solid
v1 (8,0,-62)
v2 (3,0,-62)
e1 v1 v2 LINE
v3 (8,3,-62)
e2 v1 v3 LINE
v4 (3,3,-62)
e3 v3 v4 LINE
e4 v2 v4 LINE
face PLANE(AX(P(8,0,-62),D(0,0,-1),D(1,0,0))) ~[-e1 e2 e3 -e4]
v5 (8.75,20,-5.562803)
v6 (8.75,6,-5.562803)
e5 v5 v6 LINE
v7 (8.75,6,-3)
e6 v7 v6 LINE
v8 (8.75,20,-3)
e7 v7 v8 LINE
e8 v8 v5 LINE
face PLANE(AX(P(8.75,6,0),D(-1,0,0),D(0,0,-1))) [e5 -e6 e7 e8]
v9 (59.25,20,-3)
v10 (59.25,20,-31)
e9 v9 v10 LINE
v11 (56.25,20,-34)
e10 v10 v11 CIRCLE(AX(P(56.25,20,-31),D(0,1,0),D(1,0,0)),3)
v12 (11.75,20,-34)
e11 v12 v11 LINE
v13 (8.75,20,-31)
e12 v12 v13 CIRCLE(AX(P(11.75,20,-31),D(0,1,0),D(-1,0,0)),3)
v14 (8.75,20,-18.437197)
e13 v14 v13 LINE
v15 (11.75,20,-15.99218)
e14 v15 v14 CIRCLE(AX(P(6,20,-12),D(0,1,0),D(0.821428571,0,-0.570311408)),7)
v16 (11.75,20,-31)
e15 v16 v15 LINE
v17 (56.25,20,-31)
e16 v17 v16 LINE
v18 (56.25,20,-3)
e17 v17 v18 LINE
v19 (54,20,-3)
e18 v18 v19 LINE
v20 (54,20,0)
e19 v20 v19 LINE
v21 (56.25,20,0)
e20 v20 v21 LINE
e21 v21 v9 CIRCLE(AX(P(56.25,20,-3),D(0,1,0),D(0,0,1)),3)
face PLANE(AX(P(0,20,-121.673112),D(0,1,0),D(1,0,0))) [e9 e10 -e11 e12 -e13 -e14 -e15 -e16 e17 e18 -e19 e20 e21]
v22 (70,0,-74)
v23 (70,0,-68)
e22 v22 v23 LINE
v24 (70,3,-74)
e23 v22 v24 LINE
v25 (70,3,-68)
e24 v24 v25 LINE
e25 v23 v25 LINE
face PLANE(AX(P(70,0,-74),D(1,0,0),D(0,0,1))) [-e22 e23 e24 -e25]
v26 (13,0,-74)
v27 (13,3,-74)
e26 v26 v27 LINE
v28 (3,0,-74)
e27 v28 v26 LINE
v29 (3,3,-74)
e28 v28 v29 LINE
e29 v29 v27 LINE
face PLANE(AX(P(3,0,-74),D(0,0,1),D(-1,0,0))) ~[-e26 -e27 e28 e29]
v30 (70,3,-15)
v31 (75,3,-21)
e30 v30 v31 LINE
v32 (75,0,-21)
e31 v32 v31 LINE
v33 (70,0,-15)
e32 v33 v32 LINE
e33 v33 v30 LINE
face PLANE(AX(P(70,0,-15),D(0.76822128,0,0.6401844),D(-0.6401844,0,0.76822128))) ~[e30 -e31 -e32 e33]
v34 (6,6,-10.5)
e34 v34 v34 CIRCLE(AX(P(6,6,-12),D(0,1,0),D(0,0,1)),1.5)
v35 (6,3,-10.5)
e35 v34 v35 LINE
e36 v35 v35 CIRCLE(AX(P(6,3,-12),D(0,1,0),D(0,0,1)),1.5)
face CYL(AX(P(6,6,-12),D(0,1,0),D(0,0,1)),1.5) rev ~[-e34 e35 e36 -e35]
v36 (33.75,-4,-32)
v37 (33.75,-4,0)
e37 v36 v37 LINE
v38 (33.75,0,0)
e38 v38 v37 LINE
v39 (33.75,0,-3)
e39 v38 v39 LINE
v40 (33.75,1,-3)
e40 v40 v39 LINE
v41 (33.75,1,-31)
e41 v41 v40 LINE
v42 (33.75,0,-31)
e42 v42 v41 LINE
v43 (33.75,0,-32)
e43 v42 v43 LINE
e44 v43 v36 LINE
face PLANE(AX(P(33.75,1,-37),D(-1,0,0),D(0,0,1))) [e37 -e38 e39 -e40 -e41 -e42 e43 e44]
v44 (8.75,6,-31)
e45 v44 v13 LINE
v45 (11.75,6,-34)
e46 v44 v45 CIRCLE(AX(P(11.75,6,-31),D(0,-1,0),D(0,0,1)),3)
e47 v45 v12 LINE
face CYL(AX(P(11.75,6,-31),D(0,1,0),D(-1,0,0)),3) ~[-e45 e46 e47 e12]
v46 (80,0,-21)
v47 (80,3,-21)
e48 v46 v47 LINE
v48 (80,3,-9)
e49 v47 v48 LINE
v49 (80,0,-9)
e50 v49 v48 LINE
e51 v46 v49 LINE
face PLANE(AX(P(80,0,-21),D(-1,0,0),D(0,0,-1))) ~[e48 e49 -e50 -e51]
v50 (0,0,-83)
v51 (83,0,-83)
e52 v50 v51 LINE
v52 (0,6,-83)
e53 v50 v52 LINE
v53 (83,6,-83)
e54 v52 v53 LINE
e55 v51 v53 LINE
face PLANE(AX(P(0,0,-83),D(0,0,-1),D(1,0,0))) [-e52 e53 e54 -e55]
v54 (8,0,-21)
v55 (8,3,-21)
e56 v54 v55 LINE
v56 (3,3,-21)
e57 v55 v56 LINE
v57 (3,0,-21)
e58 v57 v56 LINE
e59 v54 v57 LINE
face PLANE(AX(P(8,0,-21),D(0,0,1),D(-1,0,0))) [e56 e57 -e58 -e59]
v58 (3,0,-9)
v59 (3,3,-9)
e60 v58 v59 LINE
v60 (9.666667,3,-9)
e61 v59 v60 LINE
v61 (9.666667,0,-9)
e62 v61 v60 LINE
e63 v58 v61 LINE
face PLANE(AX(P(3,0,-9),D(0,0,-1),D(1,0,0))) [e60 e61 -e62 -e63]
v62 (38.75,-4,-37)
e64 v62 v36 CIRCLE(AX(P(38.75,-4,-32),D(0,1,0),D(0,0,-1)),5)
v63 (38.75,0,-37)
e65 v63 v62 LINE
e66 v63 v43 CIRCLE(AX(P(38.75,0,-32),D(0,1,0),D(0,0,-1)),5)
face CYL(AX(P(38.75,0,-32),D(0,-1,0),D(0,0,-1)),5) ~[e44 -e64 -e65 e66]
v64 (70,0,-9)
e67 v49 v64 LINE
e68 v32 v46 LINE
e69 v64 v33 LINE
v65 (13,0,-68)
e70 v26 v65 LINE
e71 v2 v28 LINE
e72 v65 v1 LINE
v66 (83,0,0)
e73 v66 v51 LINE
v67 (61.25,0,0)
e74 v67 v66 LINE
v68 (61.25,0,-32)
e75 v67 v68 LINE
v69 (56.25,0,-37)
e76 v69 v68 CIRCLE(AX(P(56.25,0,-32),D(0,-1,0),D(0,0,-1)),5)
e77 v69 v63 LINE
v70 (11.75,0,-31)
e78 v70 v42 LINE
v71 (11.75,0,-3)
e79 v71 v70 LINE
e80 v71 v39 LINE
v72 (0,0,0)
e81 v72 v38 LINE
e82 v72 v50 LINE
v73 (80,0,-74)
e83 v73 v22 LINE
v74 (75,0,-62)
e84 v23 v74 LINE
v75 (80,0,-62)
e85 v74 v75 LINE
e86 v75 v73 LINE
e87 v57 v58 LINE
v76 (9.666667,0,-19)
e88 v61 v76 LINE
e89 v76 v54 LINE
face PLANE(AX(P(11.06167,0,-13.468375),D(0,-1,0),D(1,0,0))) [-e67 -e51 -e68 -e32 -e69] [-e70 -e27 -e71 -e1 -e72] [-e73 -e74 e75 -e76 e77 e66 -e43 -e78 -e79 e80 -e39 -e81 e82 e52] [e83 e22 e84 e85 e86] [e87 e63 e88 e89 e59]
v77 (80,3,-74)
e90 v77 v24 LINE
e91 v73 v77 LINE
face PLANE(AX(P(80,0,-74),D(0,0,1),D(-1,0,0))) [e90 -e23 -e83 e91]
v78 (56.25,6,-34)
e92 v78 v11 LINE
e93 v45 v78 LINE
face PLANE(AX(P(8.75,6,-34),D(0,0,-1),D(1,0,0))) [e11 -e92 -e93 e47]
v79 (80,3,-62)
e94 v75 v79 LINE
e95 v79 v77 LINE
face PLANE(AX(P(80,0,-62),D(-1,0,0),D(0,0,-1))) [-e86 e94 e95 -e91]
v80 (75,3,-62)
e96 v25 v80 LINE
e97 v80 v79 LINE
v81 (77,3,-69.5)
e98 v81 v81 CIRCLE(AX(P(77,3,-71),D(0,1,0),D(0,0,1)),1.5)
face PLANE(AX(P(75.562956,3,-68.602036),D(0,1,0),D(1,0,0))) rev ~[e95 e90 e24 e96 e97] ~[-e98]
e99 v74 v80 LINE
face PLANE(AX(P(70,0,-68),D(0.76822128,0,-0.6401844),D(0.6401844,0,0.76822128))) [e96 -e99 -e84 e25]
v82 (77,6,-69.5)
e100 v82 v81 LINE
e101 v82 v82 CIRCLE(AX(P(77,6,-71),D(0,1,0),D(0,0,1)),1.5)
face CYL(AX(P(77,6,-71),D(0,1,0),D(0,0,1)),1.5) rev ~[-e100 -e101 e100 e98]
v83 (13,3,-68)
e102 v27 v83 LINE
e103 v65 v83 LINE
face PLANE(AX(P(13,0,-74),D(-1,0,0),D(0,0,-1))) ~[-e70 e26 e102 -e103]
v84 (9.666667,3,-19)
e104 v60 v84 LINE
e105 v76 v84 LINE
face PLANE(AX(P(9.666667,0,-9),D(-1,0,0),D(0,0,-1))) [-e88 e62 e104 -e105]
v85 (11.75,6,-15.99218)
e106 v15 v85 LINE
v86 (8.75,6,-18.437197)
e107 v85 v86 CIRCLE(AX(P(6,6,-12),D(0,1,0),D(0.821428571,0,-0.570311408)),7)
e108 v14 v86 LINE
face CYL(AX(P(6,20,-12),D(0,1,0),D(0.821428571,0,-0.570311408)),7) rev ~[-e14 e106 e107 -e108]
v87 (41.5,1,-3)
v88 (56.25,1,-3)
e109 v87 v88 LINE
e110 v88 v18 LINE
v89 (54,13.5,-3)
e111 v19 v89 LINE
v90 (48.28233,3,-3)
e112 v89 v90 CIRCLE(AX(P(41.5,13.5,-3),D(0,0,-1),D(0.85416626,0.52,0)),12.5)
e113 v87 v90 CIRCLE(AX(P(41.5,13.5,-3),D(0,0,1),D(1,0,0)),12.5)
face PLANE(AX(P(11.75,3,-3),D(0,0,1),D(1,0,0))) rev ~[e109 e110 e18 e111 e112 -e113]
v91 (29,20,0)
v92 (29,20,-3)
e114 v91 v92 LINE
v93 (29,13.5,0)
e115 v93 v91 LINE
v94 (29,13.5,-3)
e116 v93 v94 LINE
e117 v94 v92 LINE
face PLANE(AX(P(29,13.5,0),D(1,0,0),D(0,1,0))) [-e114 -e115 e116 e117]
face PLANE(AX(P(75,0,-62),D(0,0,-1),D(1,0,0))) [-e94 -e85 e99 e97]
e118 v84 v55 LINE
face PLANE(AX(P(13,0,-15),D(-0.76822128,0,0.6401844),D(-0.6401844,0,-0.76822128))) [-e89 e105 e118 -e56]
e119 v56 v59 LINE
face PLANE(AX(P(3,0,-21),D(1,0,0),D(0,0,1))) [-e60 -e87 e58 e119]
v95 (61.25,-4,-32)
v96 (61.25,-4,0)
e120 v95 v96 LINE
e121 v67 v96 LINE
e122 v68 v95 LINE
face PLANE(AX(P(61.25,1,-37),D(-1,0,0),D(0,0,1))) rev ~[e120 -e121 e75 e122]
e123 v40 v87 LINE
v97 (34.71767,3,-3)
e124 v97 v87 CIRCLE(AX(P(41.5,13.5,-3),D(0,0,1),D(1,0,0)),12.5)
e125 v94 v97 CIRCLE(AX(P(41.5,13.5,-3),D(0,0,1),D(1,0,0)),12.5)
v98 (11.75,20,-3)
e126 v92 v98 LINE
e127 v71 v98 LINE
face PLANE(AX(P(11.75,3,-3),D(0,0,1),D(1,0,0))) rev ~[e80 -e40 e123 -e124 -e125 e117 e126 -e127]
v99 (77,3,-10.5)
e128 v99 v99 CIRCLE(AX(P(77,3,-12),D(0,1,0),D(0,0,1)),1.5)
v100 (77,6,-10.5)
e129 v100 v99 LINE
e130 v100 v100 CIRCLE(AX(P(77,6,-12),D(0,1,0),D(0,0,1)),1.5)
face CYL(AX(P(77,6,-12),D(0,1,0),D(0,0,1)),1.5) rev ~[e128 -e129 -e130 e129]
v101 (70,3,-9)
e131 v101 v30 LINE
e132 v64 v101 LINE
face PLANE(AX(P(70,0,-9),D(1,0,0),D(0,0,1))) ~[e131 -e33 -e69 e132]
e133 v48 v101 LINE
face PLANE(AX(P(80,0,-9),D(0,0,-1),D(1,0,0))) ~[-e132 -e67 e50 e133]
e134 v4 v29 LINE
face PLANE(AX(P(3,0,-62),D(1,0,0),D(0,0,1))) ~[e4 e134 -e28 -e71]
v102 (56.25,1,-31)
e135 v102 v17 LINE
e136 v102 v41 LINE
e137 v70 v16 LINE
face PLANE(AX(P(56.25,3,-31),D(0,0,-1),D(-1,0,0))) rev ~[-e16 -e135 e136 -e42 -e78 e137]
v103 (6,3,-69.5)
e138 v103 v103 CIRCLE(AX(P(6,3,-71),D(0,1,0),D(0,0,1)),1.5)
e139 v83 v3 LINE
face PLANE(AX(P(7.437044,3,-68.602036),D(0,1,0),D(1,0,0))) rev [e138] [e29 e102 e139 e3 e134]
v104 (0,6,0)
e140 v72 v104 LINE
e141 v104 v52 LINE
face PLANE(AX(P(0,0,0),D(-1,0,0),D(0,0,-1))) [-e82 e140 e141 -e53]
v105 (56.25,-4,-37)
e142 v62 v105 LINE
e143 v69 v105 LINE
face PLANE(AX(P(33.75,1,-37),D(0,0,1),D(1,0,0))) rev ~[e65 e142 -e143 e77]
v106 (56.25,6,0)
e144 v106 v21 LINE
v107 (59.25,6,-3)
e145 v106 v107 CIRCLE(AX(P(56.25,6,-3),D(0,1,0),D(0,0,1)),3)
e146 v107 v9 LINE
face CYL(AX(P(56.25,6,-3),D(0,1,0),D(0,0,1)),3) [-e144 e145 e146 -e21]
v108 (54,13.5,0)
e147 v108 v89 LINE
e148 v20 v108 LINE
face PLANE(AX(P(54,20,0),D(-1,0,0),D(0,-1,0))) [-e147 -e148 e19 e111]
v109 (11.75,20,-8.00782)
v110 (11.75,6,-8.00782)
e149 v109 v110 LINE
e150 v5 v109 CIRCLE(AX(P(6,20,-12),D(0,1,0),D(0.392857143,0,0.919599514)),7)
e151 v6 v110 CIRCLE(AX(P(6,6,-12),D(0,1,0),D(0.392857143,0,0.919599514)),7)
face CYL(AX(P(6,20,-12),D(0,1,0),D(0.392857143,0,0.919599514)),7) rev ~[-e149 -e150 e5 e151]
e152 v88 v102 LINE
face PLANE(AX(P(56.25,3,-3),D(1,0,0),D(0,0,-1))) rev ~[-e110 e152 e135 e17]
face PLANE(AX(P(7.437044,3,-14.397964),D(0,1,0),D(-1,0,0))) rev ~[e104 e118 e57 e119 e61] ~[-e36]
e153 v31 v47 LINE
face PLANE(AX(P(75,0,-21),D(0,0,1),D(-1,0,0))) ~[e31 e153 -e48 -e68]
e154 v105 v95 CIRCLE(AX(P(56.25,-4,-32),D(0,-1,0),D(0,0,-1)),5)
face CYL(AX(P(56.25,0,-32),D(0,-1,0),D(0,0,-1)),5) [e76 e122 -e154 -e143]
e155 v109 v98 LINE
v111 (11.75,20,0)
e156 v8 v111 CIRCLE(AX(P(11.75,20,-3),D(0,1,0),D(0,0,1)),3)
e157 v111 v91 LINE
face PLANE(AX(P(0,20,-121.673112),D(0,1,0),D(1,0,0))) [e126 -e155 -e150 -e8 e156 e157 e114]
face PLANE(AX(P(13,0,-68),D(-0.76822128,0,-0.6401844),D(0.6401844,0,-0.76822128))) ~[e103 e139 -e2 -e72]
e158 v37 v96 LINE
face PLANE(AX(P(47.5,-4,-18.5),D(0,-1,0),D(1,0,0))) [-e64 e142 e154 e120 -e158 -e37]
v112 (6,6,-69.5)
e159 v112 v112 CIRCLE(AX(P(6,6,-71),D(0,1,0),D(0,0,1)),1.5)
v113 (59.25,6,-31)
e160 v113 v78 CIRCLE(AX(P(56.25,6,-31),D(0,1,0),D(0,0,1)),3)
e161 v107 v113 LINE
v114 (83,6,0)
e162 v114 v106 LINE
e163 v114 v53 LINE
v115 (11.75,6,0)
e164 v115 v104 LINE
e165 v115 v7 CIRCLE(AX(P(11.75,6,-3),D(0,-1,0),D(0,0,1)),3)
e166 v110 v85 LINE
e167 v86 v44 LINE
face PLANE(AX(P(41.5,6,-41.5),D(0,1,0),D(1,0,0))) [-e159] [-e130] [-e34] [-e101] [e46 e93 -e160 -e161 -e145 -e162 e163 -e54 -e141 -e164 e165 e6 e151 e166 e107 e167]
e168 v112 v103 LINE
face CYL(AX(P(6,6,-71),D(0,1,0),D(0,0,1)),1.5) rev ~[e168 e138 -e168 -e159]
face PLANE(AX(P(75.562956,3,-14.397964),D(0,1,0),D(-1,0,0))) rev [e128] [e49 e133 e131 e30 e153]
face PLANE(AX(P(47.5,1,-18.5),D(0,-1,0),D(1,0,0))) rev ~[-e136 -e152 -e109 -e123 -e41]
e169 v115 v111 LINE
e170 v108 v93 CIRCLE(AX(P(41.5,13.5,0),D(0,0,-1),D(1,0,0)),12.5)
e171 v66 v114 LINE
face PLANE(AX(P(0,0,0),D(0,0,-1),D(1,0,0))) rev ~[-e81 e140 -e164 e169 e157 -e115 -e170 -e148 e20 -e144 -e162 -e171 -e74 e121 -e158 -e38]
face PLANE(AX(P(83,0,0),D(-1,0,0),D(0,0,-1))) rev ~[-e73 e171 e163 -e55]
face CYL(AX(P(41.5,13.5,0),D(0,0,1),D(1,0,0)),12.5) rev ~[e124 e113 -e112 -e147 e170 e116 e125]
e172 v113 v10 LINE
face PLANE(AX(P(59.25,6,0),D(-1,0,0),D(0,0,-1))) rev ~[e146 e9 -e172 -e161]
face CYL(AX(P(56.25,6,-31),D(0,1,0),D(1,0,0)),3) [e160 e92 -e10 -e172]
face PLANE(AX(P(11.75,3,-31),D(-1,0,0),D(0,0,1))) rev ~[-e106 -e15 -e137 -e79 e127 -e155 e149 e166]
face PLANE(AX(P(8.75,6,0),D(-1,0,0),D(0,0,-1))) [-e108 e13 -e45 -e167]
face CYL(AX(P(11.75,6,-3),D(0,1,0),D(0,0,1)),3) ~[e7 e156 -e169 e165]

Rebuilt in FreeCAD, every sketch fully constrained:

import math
import FreeCAD as App
import Part
import Sketcher
from FreeCAD import Vector
Q = App.Units.Quantity


def edges_at(feature, points):
    """Names of the edges that pass closest to the given points."""
    edges = feature.Shape.Edges
    near = lambda p: min(range(len(edges)), key=lambda i: edges[i].distToShape(Part.Vertex(*p))[0])
    return sorted({f"Edge{near(p) + 1}" for p in points})

doc = App.newDocument("Part")
body = doc.addObject("PartDesign::Body", "Body")

# Sketch on XZ plane
sketch1 = body.newObject("Sketcher::SketchObject", "Sketch")
sketch1.AttachmentSupport = (doc.getObject("XZ_Plane"), [""])
sketch1.MapMode = "FlatFace"
sketch1.addGeometry([
    Part.LineSegment(Vector(0, -83, 0), Vector(0, 0, 0)),
    Part.LineSegment(Vector(0, 0, 0), Vector(83, 0, 0)),
    Part.LineSegment(Vector(83, 0, 0), Vector(83, -83, 0)),
    Part.LineSegment(Vector(83, -83, 0), Vector(0, -83, 0)),
], False)
sketch1.addConstraint([
    Sketcher.Constraint("Coincident", 0, 2, 1, 1),
    Sketcher.Constraint("Coincident", 1, 2, 2, 1),
    Sketcher.Constraint("Coincident", 2, 2, 3, 1),
    Sketcher.Constraint("Coincident", 3, 2, 0, 1),
    Sketcher.Constraint("Vertical", 0),
    Sketcher.Constraint("Horizontal", 1),
    Sketcher.Constraint("Vertical", 2),
    Sketcher.Constraint("Horizontal", 3),
    Sketcher.Constraint("Coincident", 0, 2, -1, 1),
    Sketcher.Constraint("Equal", 3, 0),
    Sketcher.Constraint("DistanceX", 1, 1, 1, 2, Q("83 mm")),
])
pad1 = body.newObject("PartDesign::Pad", "Pad")
pad1.Profile = sketch1
pad1.Length = 6
pad1.Reversed = True

# Sketch on XZ plane
sketch2 = body.newObject("Sketcher::SketchObject", "Sketch001")
sketch2.AttachmentSupport = (doc.getObject("XZ_Plane"), [""])
sketch2.MapMode = "FlatFace"
sketch2.AttachmentOffset = App.Placement(Vector(0, 0, -6), App.Rotation())
sketch2.addGeometry([
    Part.Circle(Vector(6, -71, 0), Vector(0, 0, 1), 1.5),
    Part.Circle(Vector(6, -12, 0), Vector(0, 0, 1), 1.5),
    Part.Circle(Vector(77, -12, 0), Vector(0, 0, 1), 1.5),
    Part.Circle(Vector(77, -71, 0), Vector(0, 0, 1), 1.5),
], False)
sketch2.addConstraint([
    Sketcher.Constraint("Equal", 0, 1),
    Sketcher.Constraint("Equal", 1, 2),
    Sketcher.Constraint("Equal", 2, 3),
    Sketcher.Constraint("Horizontal", 1, 3, 2, 3),
    Sketcher.Constraint("Horizontal", 0, 3, 3, 3),
    Sketcher.Constraint("Vertical", 0, 3, 1, 3),
    Sketcher.Constraint("Vertical", 2, 3, 3, 3),
    Sketcher.Constraint("Diameter", 0, Q("3 mm")),
    Sketcher.Constraint("DistanceX", -1, 1, 0, 3, Q("6 mm")),
    Sketcher.Constraint("DistanceY", 0, 3, -1, 1, Q("71 mm")),
    Sketcher.Constraint("DistanceY", 1, 3, -1, 1, Q("12 mm")),
    Sketcher.Constraint("DistanceX", -1, 1, 2, 3, Q("77 mm")),
])
pocket1 = body.newObject("PartDesign::Pocket", "Pocket")
pocket1.Profile = sketch2
pocket1.Type = "ThroughAll"
pocket1.Reversed = True

# Sketch on XZ plane
sketch3 = body.newObject("Sketcher::SketchObject", "Sketch002")
sketch3.AttachmentSupport = (doc.getObject("XZ_Plane"), [""])
sketch3.MapMode = "FlatFace"
sketch3.AttachmentOffset = App.Placement(Vector(0, 0, -6), App.Rotation())
sketch3.addGeometry([
    Part.LineSegment(Vector(9, -34, 0), Vector(9, 0, 0)),
    Part.LineSegment(Vector(9, 0, 0), Vector(59, 0, 0)),
    Part.LineSegment(Vector(59, 0, 0), Vector(59, -34, 0)),
    Part.LineSegment(Vector(59, -34, 0), Vector(9, -34, 0)),
], False)
sketch3.addConstraint([
    Sketcher.Constraint("Coincident", 0, 2, 1, 1),
    Sketcher.Constraint("Coincident", 1, 2, 2, 1),
    Sketcher.Constraint("Coincident", 2, 2, 3, 1),
    Sketcher.Constraint("Coincident", 3, 2, 0, 1),
    Sketcher.Constraint("Vertical", 0),
    Sketcher.Constraint("Horizontal", 1),
    Sketcher.Constraint("Vertical", 2),
    Sketcher.Constraint("Horizontal", 3),
    Sketcher.Constraint("PointOnObject", 0, 2, -1),
    Sketcher.Constraint("DistanceY", 0, 1, 0, 2, Q("34 mm")),
    Sketcher.Constraint("DistanceX", 1, 1, 1, 2, Q("50.5 mm")),
    Sketcher.Constraint("DistanceX", -1, 1, 0, 2, Q("8.75 mm")),
])
pad2 = body.newObject("PartDesign::Pad", "Pad001")
pad2.Profile = sketch3
pad2.Length = 22
pad2.Reversed = True

# Sketch on XZ plane
sketch4 = body.newObject("Sketcher::SketchObject", "Sketch003")
sketch4.AttachmentSupport = (doc.getObject("XZ_Plane"), [""])
sketch4.MapMode = "FlatFace"
sketch4.AttachmentOffset = App.Placement(Vector(0, 0, -28), App.Rotation())
sketch4.addGeometry([
    Part.LineSegment(Vector(12, -31, 0), Vector(12, -3, 0)),
    Part.LineSegment(Vector(12, -3, 0), Vector(56, -3, 0)),
    Part.LineSegment(Vector(56, -3, 0), Vector(56, -31, 0)),
    Part.LineSegment(Vector(56, -31, 0), Vector(12, -31, 0)),
], False)
sketch4.addConstraint([
    Sketcher.Constraint("Coincident", 0, 2, 1, 1),
    Sketcher.Constraint("Coincident", 1, 2, 2, 1),
    Sketcher.Constraint("Coincident", 2, 2, 3, 1),
    Sketcher.Constraint("Coincident", 3, 2, 0, 1),
    Sketcher.Constraint("Vertical", 0),
    Sketcher.Constraint("Horizontal", 1),
    Sketcher.Constraint("Vertical", 2),
    Sketcher.Constraint("Horizontal", 3),
    Sketcher.Constraint("DistanceY", 0, 1, 0, 2, Q("28 mm")),
    Sketcher.Constraint("DistanceX", 1, 1, 1, 2, Q("44.5 mm")),
    Sketcher.Constraint("DistanceY", 0, 2, -1, 1, Q("3 mm")),
    Sketcher.Constraint("DistanceX", -1, 1, 0, 2, Q("11.75 mm")),
])
pocket2 = body.newObject("PartDesign::Pocket", "Pocket001")
pocket2.Profile = sketch4
pocket2.Length = 25
pocket2.Reversed = True
doc.recompute()

fillet = body.newObject("PartDesign::Fillet", "Fillet")
fillet.Base = (pocket2, edges_at(pocket2, [
    (59.25, 17, -34),
    (8.75, 17, -34),
    (8.75, 17, 0),
    (59.25, 17, 0),
]))
fillet.Radius = 3

# Sketch on XY plane
sketch5 = body.newObject("Sketcher::SketchObject", "Sketch004")
sketch5.AttachmentSupport = (doc.getObject("XY_Plane"), [""])
sketch5.MapMode = "FlatFace"
sketch5.addGeometry(Part.Circle(Vector(42, 14, 0), Vector(0, 0, 1), 12), False)
sketch5.addConstraint([
    Sketcher.Constraint("Diameter", 0, Q("25 mm")),
    Sketcher.Constraint("DistanceX", -1, 1, 0, 3, Q("41.5 mm")),
    Sketcher.Constraint("DistanceY", -1, 1, 0, 3, Q("13.5 mm")),
])
pocket3 = body.newObject("PartDesign::Pocket", "Pocket002")
pocket3.Profile = sketch5
pocket3.Length = 10

# Sketch on XY plane
sketch6 = body.newObject("Sketcher::SketchObject", "Sketch005")
sketch6.AttachmentSupport = (doc.getObject("XY_Plane"), [""])
sketch6.MapMode = "FlatFace"
sketch6.addGeometry([
    Part.LineSegment(Vector(0, 28, 0), Vector(0, 20, 0)),
    Part.LineSegment(Vector(0, 20, 0), Vector(83, 20, 0)),
    Part.LineSegment(Vector(83, 20, 0), Vector(83, 28, 0)),
    Part.LineSegment(Vector(83, 28, 0), Vector(0, 28, 0)),
], False)
sketch6.addConstraint([
    Sketcher.Constraint("Coincident", 0, 2, 1, 1),
    Sketcher.Constraint("Coincident", 1, 2, 2, 1),
    Sketcher.Constraint("Coincident", 2, 2, 3, 1),
    Sketcher.Constraint("Coincident", 3, 2, 0, 1),
    Sketcher.Constraint("Vertical", 0),
    Sketcher.Constraint("Horizontal", 1),
    Sketcher.Constraint("Vertical", 2),
    Sketcher.Constraint("Horizontal", 3),
    Sketcher.Constraint("PointOnObject", 0, 2, -2),
    Sketcher.Constraint("DistanceX", 1, 1, 1, 2, Q("83 mm")),
    Sketcher.Constraint("DistanceY", 0, 2, 0, 1, Q("8 mm")),
    Sketcher.Constraint("DistanceY", -1, 1, 0, 2, Q("20 mm")),
])
pocket4 = body.newObject("PartDesign::Pocket", "Pocket003")
pocket4.Profile = sketch6
pocket4.Type = "ThroughAll"
pocket4.Midplane = True

# Sketch on XZ plane
sketch7 = body.newObject("Sketcher::SketchObject", "Sketch006")
sketch7.AttachmentSupport = (doc.getObject("XZ_Plane"), [""])
sketch7.MapMode = "FlatFace"
sketch7.addGeometry([
    Part.LineSegment(Vector(13, -9, 0), Vector(3, -9, 0)),  # 0
    Part.LineSegment(Vector(3, -9, 0), Vector(3, -21, 0)),  # 1
    Part.LineSegment(Vector(3, -21, 0), Vector(8, -21, 0)),  # 2
    Part.LineSegment(Vector(8, -21, 0), Vector(13, -15, 0)),  # 3
    Part.LineSegment(Vector(13, -15, 0), Vector(13, -9, 0)),  # 4
], False)
sketch7.addConstraint([
    Sketcher.Constraint("Coincident", 0, 2, 1, 1),
    Sketcher.Constraint("Coincident", 1, 2, 2, 1),
    Sketcher.Constraint("Coincident", 2, 2, 3, 1),
    Sketcher.Constraint("Coincident", 3, 2, 4, 1),
    Sketcher.Constraint("Coincident", 4, 2, 0, 1),
    Sketcher.Constraint("Horizontal", 0),
    Sketcher.Constraint("Vertical", 1),
    Sketcher.Constraint("Horizontal", 2),
    Sketcher.Constraint("Vertical", 4),
    Sketcher.Constraint("DistanceX", 0, 2, 0, 1, Q("10 mm")),
    Sketcher.Constraint("DistanceX", 2, 1, 2, 2, Q("5 mm")),
    Sketcher.Constraint("DistanceY", 1, 2, 1, 1, Q("12 mm")),
    Sketcher.Constraint("DistanceY", 4, 1, 4, 2, Q("6 mm")),
    Sketcher.Constraint("DistanceX", -1, 1, 0, 2, Q("3 mm")),
    Sketcher.Constraint("DistanceY", 0, 2, -1, 1, Q("9 mm")),
])
pocket5 = body.newObject("PartDesign::Pocket", "Pocket004")
pocket5.Profile = sketch7
pocket5.Length = 3
doc.recompute()

datumplane = body.newObject("PartDesign::Plane", "DatumPlane")
datumplane.AttachmentSupport = (doc.getObject("XY_Plane"), [""])
datumplane.MapMode = "FlatFace"
datumplane.AttachmentOffset = App.Placement(Vector(0, 0, -41.5), App.Rotation())
mirrored = body.newObject("PartDesign::Mirrored", "Mirrored")
mirrored.Originals = [pocket5]
mirrored.MirrorPlane = (datumplane, [""])
body.Tip = mirrored
doc.recompute()

datumplane2 = body.newObject("PartDesign::Plane", "DatumPlane001")
datumplane2.AttachmentSupport = (doc.getObject("YZ_Plane"), [""])
datumplane2.MapMode = "FlatFace"
datumplane2.AttachmentOffset = App.Placement(Vector(0, 0, 41.5), App.Rotation())
mirrored2 = body.newObject("PartDesign::Mirrored", "Mirrored001")
mirrored2.Originals = [pocket5]
mirrored2.MirrorPlane = (datumplane2, [""])
body.Tip = mirrored2

# Sketch on XZ plane
sketch8 = body.newObject("Sketcher::SketchObject", "Sketch007")
sketch8.AttachmentSupport = (doc.getObject("XZ_Plane"), [""])
sketch8.MapMode = "FlatFace"
sketch8.addGeometry([
    Part.LineSegment(Vector(70, -74, 0), Vector(80, -74, 0)),  # 0
    Part.LineSegment(Vector(80, -74, 0), Vector(80, -62, 0)),  # 1
    Part.LineSegment(Vector(80, -62, 0), Vector(75, -62, 0)),  # 2
    Part.LineSegment(Vector(75, -62, 0), Vector(70, -68, 0)),  # 3
    Part.LineSegment(Vector(70, -68, 0), Vector(70, -74, 0)),  # 4
], False)
sketch8.addConstraint([
    Sketcher.Constraint("Coincident", 0, 2, 1, 1),
    Sketcher.Constraint("Coincident", 1, 2, 2, 1),
    Sketcher.Constraint("Coincident", 2, 2, 3, 1),
    Sketcher.Constraint("Coincident", 3, 2, 4, 1),
    Sketcher.Constraint("Coincident", 4, 2, 0, 1),
    Sketcher.Constraint("Horizontal", 0),
    Sketcher.Constraint("Vertical", 1),
    Sketcher.Constraint("Horizontal", 2),
    Sketcher.Constraint("Vertical", 4),
    Sketcher.Constraint("DistanceX", 0, 1, 0, 2, Q("10 mm")),
    Sketcher.Constraint("DistanceX", 2, 2, 2, 1, Q("5 mm")),
    Sketcher.Constraint("DistanceY", 1, 1, 1, 2, Q("12 mm")),
    Sketcher.Constraint("DistanceY", 4, 2, 4, 1, Q("6 mm")),
    Sketcher.Constraint("DistanceX", -1, 1, 0, 2, Q("80 mm")),
    Sketcher.Constraint("DistanceY", 0, 2, -1, 1, Q("74 mm")),
])
pocket6 = body.newObject("PartDesign::Pocket", "Pocket005")
pocket6.Profile = sketch8
pocket6.Length = 3

# Sketch on XZ plane
sketch9 = body.newObject("Sketcher::SketchObject", "Sketch008")
sketch9.AttachmentSupport = (doc.getObject("XZ_Plane"), [""])
sketch9.MapMode = "FlatFace"
sketch9.AttachmentOffset = App.Placement(Vector(0, 0, -20), App.Rotation())
sketch9.addGeometry([
    Part.LineSegment(Vector(11.8, -8, 0), Vector(11.8, -16, 0)),
    Part.ArcOfCircle(Part.Circle(Vector(6, -12, 0), Vector(0, 0, 1), 7), math.radians(-67), math.radians(-35)),
    Part.LineSegment(Vector(8.8, -18.4, 0), Vector(8.8, -5.6, 0)),
    Part.ArcOfCircle(Part.Circle(Vector(6, -12, 0), Vector(0, 0, 1), 7), math.radians(35), math.radians(67)),
], False)
sketch9.addConstraint([
    Sketcher.Constraint("Coincident", 0, 2, 1, 2),
    Sketcher.Constraint("Coincident", 1, 1, 2, 1),
    Sketcher.Constraint("Coincident", 2, 2, 3, 2),
    Sketcher.Constraint("Coincident", 3, 1, 0, 1),
    Sketcher.Constraint("Vertical", 0),
    Sketcher.Constraint("Vertical", 2),
    Sketcher.Constraint("Coincident", 3, 3, 1, 3),
    Sketcher.Constraint("Equal", 1, 3),
    Sketcher.Constraint("Radius", 1, Q("7 mm")),
    Sketcher.Constraint("DistanceX", -1, 1, 1, 3, Q("6 mm")),
    Sketcher.Constraint("DistanceY", 1, 3, -1, 1, Q("12 mm")),
    Sketcher.Constraint("DistanceX", 1, 1, 0, 2, Q("3 mm")),
    Sketcher.Constraint("DistanceX", -1, 1, 0, 2, Q("11.75 mm")),
])
pocket7 = body.newObject("PartDesign::Pocket", "Pocket006")
pocket7.Profile = sketch9
pocket7.Length = 14
pocket7.Reversed = True

# Sketch on XY plane
sketch10 = body.newObject("Sketcher::SketchObject", "Sketch009")
sketch10.AttachmentSupport = (doc.getObject("XY_Plane"), [""])
sketch10.MapMode = "FlatFace"
sketch10.addGeometry([
    Part.LineSegment(Vector(29, 20, 0), Vector(29, 13.5, 0)),
    Part.LineSegment(Vector(29, 13.5, 0), Vector(30.8, 20, 0)),
    Part.LineSegment(Vector(30.8, 20, 0), Vector(29, 20, 0)),
], False)
sketch10.addConstraint([
    Sketcher.Constraint("Coincident", 0, 2, 1, 1),
    Sketcher.Constraint("Coincident", 1, 2, 2, 1),
    Sketcher.Constraint("Coincident", 2, 2, 0, 1),
    Sketcher.Constraint("Vertical", 0),
    Sketcher.Constraint("Horizontal", 2),
    Sketcher.Constraint("DistanceY", 0, 2, 0, 1, Q("6.5 mm")),
    Sketcher.Constraint("DistanceX", -1, 1, 0, 2, Q("29 mm")),
    Sketcher.Constraint("DistanceY", -1, 1, 1, 2, Q("20 mm")),
    Sketcher.Constraint("DistanceX", 2, 2, 2, 1, Q("1.822922 mm")),
])
pocket8 = body.newObject("PartDesign::Pocket", "Pocket007")
pocket8.Profile = sketch10
pocket8.Length = 10

# Sketch on XY plane
sketch11 = body.newObject("Sketcher::SketchObject", "Sketch010")
sketch11.AttachmentSupport = (doc.getObject("XY_Plane"), [""])
sketch11.MapMode = "FlatFace"
sketch11.addGeometry([
    Part.LineSegment(Vector(54, 13.5, 0), Vector(54, 20, 0)),
    Part.LineSegment(Vector(54, 20, 0), Vector(52.2, 20, 0)),
    Part.LineSegment(Vector(52.2, 20, 0), Vector(54, 13.5, 0)),
], False)
sketch11.addConstraint([
    Sketcher.Constraint("Coincident", 0, 2, 1, 1),
    Sketcher.Constraint("Coincident", 1, 2, 2, 1),
    Sketcher.Constraint("Coincident", 2, 2, 0, 1),
    Sketcher.Constraint("Vertical", 0),
    Sketcher.Constraint("Horizontal", 1),
    Sketcher.Constraint("DistanceY", 0, 1, 0, 2, Q("6.5 mm")),
    Sketcher.Constraint("DistanceX", -1, 1, 0, 2, Q("54 mm")),
    Sketcher.Constraint("DistanceY", -1, 1, 0, 2, Q("20 mm")),
    Sketcher.Constraint("DistanceX", 1, 2, 1, 1, Q("1.822922 mm")),
])
pocket9 = body.newObject("PartDesign::Pocket", "Pocket008")
pocket9.Profile = sketch11
pocket9.Length = 10

# Sketch on XZ plane
sketch12 = body.newObject("Sketcher::SketchObject", "Sketch011")
sketch12.AttachmentSupport = (doc.getObject("XZ_Plane"), [""])
sketch12.MapMode = "FlatFace"
sketch12.addGeometry([
    Part.LineSegment(Vector(9.7, -9, 0), Vector(9.7, -19, 0)),
    Part.LineSegment(Vector(9.7, -19, 0), Vector(13, -15, 0)),
    Part.LineSegment(Vector(13, -15, 0), Vector(13, -9, 0)),
    Part.LineSegment(Vector(13, -9, 0), Vector(9.7, -9, 0)),
], False)
sketch12.addConstraint([
    Sketcher.Constraint("Coincident", 0, 2, 1, 1),
    Sketcher.Constraint("Coincident", 1, 2, 2, 1),
    Sketcher.Constraint("Coincident", 2, 2, 3, 1),
    Sketcher.Constraint("Coincident", 3, 2, 0, 1),
    Sketcher.Constraint("Vertical", 0),
    Sketcher.Constraint("Vertical", 2),
    Sketcher.Constraint("Horizontal", 3),
    Sketcher.Constraint("DistanceY", 0, 2, 0, 1, Q("10 mm")),
    Sketcher.Constraint("DistanceY", 2, 1, 2, 2, Q("6 mm")),
    Sketcher.Constraint("DistanceY", 0, 2, -1, 1, Q("19 mm")),
    Sketcher.Constraint("DistanceX", -1, 1, 1, 2, Q("13 mm")),
    Sketcher.Constraint("DistanceX", 3, 2, 3, 1, Q("3.333333 mm")),
])
pad3 = body.newObject("PartDesign::Pad", "Pad002")
pad3.Profile = sketch12
pad3.Length = 3
pad3.Reversed = True

# Sketch on XZ plane
sketch13 = body.newObject("Sketcher::SketchObject", "Sketch012")
sketch13.AttachmentSupport = (doc.getObject("XZ_Plane"), [""])
sketch13.MapMode = "FlatFace"
sketch13.AttachmentOffset = App.Placement(Vector(0, 0, -3), App.Rotation())
sketch13.addGeometry([
    Part.LineSegment(Vector(35, -3, 0), Vector(35, -10, 0)),  # 0
    Part.LineSegment(Vector(35, -10, 0), Vector(48, -10, 0)),  # 1
    Part.LineSegment(Vector(48, -10, 0), Vector(48, -3, 0)),  # 2
    Part.LineSegment(Vector(48, -3, 0), Vector(56, -3, 0)),  # 3
    Part.LineSegment(Vector(56, -3, 0), Vector(56, -31, 0)),  # 4
    Part.LineSegment(Vector(56, -31, 0), Vector(12, -31, 0)),  # 5
    Part.LineSegment(Vector(12, -31, 0), Vector(12, -3, 0)),  # 6
    Part.LineSegment(Vector(12, -3, 0), Vector(35, -3, 0)),  # 7
], False)
sketch13.addConstraint([
    Sketcher.Constraint("Coincident", 0, 2, 1, 1),
    Sketcher.Constraint("Coincident", 1, 2, 2, 1),
    Sketcher.Constraint("Coincident", 2, 2, 3, 1),
    Sketcher.Constraint("Coincident", 3, 2, 4, 1),
    Sketcher.Constraint("Coincident", 4, 2, 5, 1),
    Sketcher.Constraint("Coincident", 5, 2, 6, 1),
    Sketcher.Constraint("Coincident", 6, 2, 7, 1),
    Sketcher.Constraint("Coincident", 7, 2, 0, 1),
    Sketcher.Constraint("Vertical", 0),
    Sketcher.Constraint("Horizontal", 1),
    Sketcher.Constraint("Vertical", 2),
    Sketcher.Constraint("Horizontal", 3),
    Sketcher.Constraint("Vertical", 4),
    Sketcher.Constraint("Horizontal", 5),
    Sketcher.Constraint("Vertical", 6),
    Sketcher.Constraint("Horizontal", 7),
    Sketcher.Constraint("Horizontal", 3, 2, 6, 2),
    Sketcher.Constraint("DistanceY", 0, 2, 0, 1, Q("7 mm")),
    Sketcher.Constraint("DistanceY", 4, 2, 4, 1, Q("28 mm")),
    Sketcher.Constraint("DistanceX", 5, 2, 5, 1, Q("44.5 mm")),
    Sketcher.Constraint("DistanceY", 0, 2, -1, 1, Q("10 mm")),
    Sketcher.Constraint("DistanceX", -1, 1, 3, 2, Q("56.25 mm")),
    Sketcher.Constraint("DistanceX", 1, 1, 1, 2, Q("13.56466 mm")),
    Sketcher.Constraint("DistanceX", 3, 1, 3, 2, Q("7.96767 mm")),
])
pocket10 = body.newObject("PartDesign::Pocket", "Pocket009")
pocket10.Profile = sketch13
pocket10.Length = 4
pocket10.Reversed = True

# Sketch on XZ plane
sketch14 = body.newObject("Sketcher::SketchObject", "Sketch013")
sketch14.AttachmentSupport = (doc.getObject("XZ_Plane"), [""])
sketch14.MapMode = "FlatFace"
sketch14.addGeometry([
    Part.LineSegment(Vector(35, -3, 0), Vector(35, -10, 0)),
    Part.LineSegment(Vector(35, -10, 0), Vector(48, -10, 0)),
    Part.LineSegment(Vector(48, -10, 0), Vector(48, -3, 0)),
    Part.LineSegment(Vector(48, -3, 0), Vector(35, -3, 0)),
], False)
sketch14.addConstraint([
    Sketcher.Constraint("Coincident", 0, 2, 1, 1),
    Sketcher.Constraint("Coincident", 1, 2, 2, 1),
    Sketcher.Constraint("Coincident", 2, 2, 3, 1),
    Sketcher.Constraint("Coincident", 3, 2, 0, 1),
    Sketcher.Constraint("Vertical", 0),
    Sketcher.Constraint("Horizontal", 1),
    Sketcher.Constraint("Vertical", 2),
    Sketcher.Constraint("Horizontal", 3),
    Sketcher.Constraint("DistanceY", 0, 2, 0, 1, Q("7 mm")),
    Sketcher.Constraint("DistanceY", 0, 2, -1, 1, Q("10 mm")),
    Sketcher.Constraint("DistanceX", 1, 1, 1, 2, Q("13.56466 mm")),
    Sketcher.Constraint("DistanceX", -1, 1, 0, 2, Q("34.71767 mm")),
])
pocket11 = body.newObject("PartDesign::Pocket", "Pocket010")
pocket11.Profile = sketch14
pocket11.Length = 4

# Sketch on XZ plane
sketch15 = body.newObject("Sketcher::SketchObject", "Sketch014")
sketch15.AttachmentSupport = (doc.getObject("XZ_Plane"), [""])
sketch15.MapMode = "FlatFace"
sketch15.addGeometry([
    Part.LineSegment(Vector(34, 0, 0), Vector(34, -37, 0)),
    Part.LineSegment(Vector(34, -37, 0), Vector(61, -37, 0)),
    Part.LineSegment(Vector(61, -37, 0), Vector(61, 0, 0)),
    Part.LineSegment(Vector(61, 0, 0), Vector(34, 0, 0)),
], False)
sketch15.addConstraint([
    Sketcher.Constraint("Coincident", 0, 2, 1, 1),
    Sketcher.Constraint("Coincident", 1, 2, 2, 1),
    Sketcher.Constraint("Coincident", 2, 2, 3, 1),
    Sketcher.Constraint("Coincident", 3, 2, 0, 1),
    Sketcher.Constraint("Vertical", 0),
    Sketcher.Constraint("Horizontal", 1),
    Sketcher.Constraint("Vertical", 2),
    Sketcher.Constraint("Horizontal", 3),
    Sketcher.Constraint("PointOnObject", 2, 2, -1),
    Sketcher.Constraint("DistanceY", 0, 2, 0, 1, Q("37 mm")),
    Sketcher.Constraint("DistanceX", 1, 1, 1, 2, Q("27.5 mm")),
    Sketcher.Constraint("DistanceX", -1, 1, 0, 2, Q("33.75 mm")),
])
pad4 = body.newObject("PartDesign::Pad", "Pad003")
pad4.Profile = sketch15
pad4.Type = "TwoLengths"
pad4.Length = 4
pad4.Length2 = 1
doc.recompute()

fillet2 = body.newObject("PartDesign::Fillet", "Fillet001")
fillet2.Base = (pad4, edges_at(pad4, [(33.75, -2, -37), (61.25, -2, -37)]))
fillet2.Radius = 5

doc.recompute()
